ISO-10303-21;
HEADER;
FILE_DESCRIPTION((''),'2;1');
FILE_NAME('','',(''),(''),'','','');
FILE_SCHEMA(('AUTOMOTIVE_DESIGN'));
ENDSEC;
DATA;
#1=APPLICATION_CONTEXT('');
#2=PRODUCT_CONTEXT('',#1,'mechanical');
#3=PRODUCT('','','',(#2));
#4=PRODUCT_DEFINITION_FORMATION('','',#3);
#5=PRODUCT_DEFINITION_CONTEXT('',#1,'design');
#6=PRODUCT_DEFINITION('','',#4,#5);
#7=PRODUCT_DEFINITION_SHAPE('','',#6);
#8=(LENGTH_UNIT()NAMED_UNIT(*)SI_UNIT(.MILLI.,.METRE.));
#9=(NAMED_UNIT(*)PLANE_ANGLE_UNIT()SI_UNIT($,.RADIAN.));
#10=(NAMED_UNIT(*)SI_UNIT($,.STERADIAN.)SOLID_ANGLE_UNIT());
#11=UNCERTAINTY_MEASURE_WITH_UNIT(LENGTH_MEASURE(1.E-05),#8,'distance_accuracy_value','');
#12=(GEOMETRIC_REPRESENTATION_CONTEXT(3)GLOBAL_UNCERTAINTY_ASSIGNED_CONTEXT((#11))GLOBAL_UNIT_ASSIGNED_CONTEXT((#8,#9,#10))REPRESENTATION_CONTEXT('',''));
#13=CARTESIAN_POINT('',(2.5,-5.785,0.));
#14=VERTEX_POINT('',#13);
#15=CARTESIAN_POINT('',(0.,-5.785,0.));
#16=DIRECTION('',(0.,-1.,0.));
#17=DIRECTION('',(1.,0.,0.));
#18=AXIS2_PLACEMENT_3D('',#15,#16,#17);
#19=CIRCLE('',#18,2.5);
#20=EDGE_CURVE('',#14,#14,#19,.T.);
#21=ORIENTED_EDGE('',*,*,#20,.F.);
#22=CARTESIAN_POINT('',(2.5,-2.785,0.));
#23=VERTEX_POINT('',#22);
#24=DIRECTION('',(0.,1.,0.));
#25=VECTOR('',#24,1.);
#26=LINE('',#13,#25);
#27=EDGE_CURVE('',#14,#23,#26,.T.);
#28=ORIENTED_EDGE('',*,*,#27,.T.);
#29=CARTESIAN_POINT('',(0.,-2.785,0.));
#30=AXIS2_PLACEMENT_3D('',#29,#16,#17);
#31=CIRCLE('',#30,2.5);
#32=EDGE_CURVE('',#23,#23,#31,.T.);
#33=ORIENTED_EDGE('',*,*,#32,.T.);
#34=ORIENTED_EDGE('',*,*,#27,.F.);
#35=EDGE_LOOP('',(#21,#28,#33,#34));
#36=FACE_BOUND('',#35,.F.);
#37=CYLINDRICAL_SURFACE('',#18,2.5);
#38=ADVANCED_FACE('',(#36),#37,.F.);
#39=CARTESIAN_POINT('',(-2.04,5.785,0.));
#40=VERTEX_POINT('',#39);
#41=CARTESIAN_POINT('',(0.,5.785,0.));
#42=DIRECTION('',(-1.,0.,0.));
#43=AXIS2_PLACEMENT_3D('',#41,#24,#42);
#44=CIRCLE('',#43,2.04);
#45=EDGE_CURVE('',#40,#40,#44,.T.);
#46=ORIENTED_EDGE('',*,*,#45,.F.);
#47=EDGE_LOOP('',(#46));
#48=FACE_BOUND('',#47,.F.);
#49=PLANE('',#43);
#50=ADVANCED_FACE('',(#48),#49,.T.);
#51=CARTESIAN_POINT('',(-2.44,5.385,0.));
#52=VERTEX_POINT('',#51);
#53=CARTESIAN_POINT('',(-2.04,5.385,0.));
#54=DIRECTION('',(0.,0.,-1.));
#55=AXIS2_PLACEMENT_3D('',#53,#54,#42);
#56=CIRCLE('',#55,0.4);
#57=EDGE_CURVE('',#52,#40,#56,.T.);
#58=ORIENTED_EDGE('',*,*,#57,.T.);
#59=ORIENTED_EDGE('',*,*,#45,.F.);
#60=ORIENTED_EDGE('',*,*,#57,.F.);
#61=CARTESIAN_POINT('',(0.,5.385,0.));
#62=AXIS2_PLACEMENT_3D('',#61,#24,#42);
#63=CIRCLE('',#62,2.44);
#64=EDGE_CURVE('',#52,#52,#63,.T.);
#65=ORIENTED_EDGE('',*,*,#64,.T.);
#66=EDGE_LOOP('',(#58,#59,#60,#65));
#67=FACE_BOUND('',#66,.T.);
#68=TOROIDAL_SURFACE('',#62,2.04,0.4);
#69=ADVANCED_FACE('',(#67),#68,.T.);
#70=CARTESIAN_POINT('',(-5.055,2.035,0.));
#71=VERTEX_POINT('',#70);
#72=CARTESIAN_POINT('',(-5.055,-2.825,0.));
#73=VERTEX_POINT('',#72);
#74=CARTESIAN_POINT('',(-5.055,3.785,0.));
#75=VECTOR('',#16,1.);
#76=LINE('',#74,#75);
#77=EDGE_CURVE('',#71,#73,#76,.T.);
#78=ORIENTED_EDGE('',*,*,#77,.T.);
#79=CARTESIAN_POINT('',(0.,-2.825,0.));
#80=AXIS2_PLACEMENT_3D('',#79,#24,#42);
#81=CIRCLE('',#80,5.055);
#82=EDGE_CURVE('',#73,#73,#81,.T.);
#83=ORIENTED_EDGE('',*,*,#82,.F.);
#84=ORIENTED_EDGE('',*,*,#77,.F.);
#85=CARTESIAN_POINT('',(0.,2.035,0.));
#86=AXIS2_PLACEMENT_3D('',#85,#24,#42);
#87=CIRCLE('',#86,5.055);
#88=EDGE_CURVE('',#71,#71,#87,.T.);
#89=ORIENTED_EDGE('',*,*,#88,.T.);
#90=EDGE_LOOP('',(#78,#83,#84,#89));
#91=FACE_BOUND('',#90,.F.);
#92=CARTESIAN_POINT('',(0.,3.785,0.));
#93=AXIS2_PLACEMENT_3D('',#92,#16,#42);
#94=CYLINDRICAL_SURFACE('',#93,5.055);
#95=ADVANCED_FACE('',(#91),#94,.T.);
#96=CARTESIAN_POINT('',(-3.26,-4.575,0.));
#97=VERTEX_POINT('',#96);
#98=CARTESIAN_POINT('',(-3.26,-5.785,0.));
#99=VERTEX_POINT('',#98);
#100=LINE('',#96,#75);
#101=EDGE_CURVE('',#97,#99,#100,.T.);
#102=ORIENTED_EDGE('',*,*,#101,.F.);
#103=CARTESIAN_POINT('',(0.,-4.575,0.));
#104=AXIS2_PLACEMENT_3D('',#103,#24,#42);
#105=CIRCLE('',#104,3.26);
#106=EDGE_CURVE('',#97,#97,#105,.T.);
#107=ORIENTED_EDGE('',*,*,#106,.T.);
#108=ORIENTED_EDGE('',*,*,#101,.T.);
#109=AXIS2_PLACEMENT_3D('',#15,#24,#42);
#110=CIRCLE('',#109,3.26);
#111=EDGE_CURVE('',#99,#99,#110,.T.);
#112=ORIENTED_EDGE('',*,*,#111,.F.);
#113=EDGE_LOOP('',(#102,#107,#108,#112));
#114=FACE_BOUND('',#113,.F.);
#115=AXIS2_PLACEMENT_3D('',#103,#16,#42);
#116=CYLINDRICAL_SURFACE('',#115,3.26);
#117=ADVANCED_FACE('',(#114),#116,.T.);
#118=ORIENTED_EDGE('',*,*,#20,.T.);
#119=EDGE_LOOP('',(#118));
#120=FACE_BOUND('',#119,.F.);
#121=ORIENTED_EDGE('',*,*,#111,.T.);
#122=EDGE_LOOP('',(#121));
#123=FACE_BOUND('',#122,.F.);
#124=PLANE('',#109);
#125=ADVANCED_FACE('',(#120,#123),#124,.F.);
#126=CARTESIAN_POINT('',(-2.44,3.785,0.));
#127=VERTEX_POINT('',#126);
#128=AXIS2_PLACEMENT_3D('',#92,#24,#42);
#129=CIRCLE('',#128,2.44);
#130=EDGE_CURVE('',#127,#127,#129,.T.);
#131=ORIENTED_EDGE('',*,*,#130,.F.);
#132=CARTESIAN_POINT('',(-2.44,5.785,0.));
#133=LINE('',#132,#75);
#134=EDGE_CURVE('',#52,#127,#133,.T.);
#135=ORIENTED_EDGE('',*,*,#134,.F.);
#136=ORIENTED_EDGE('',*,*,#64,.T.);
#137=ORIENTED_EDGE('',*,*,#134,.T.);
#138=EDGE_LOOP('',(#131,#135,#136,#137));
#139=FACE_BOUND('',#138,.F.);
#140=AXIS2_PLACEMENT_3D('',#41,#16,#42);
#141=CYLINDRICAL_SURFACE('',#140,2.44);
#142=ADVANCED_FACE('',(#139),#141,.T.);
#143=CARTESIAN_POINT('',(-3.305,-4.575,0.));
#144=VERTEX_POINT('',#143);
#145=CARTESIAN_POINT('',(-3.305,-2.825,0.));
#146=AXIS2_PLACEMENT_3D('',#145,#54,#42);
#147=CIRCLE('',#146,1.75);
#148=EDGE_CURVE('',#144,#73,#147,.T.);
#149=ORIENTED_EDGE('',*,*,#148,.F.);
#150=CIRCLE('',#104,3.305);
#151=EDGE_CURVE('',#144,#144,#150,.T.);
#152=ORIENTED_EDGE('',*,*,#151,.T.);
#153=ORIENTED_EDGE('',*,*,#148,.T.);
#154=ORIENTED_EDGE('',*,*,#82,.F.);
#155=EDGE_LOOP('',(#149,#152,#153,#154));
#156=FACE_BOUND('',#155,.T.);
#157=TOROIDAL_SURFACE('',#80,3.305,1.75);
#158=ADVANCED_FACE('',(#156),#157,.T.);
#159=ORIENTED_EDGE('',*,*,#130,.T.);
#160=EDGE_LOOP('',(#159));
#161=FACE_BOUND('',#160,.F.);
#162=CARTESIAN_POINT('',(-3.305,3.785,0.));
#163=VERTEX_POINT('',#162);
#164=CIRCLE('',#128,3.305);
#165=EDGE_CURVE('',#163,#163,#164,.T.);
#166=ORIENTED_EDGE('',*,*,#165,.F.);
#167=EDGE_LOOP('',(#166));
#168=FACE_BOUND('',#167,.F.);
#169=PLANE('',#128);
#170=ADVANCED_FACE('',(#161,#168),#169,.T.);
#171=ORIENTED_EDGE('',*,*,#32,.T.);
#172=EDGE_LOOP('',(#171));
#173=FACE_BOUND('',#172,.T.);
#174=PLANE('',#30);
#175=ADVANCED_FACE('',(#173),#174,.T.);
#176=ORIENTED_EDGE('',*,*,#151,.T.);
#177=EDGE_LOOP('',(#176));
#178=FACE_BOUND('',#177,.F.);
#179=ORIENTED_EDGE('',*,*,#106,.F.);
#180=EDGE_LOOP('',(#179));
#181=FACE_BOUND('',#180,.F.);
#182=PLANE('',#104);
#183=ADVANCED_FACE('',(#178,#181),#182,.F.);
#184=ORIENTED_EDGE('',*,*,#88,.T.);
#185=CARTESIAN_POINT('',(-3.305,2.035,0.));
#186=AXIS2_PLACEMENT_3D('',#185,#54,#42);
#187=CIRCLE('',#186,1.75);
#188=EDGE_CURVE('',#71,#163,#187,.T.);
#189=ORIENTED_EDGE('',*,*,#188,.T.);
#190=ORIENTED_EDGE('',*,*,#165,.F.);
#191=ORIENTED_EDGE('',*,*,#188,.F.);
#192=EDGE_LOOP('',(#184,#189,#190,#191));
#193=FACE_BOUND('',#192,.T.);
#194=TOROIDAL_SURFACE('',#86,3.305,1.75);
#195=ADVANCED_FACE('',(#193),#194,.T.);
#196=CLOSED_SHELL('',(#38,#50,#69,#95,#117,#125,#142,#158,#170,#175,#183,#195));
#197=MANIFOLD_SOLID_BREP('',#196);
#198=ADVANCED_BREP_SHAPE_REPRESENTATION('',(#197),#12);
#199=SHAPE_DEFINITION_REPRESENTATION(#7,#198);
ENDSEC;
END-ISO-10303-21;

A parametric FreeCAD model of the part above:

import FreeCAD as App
import Part
import Sketcher


def edges_at(feature, points):
    """Names of the edges that pass closest to the given points."""
    edges = feature.Shape.Edges
    near = lambda p: min(range(len(edges)), key=lambda i: edges[i].distToShape(Part.Vertex(*p))[0])
    return sorted({f"Edge{near(p) + 1}" for p in points})

doc = App.newDocument("Part")
body = doc.addObject("PartDesign::Body", "Body")

sketch1 = body.newObject("Sketcher::SketchObject", "Sketch")
sketch1.AttachmentSupport = (doc.getObject("XY_Plane"), [""])
sketch1.MapMode = "FlatFace"
sketch1.addGeometry([
    Part.LineSegment(App.Vector(0, -5.8, 0), App.Vector(0, 5.8, 0)),
    Part.LineSegment(App.Vector(0, 5.8, 0), App.Vector(-2.4, 5.8, 0)),
    Part.LineSegment(App.Vector(-2.4, 5.8, 0), App.Vector(-2.4, 3.8, 0)),
    Part.LineSegment(App.Vector(-2.4, 3.8, 0), App.Vector(-5.1, 3.8, 0)),
    Part.LineSegment(App.Vector(-5.1, 3.8, 0), App.Vector(-5.1, -4.6, 0)),
    Part.LineSegment(App.Vector(-5.1, -4.6, 0), App.Vector(-3.3, -4.6, 0)),
    Part.LineSegment(App.Vector(-3.3, -4.6, 0), App.Vector(-3.3, -5.8, 0)),
    Part.LineSegment(App.Vector(-3.3, -5.8, 0), App.Vector(0, -5.8, 0)),
], False)
sketch1.addConstraint([
    Sketcher.Constraint("Coincident", 0, 2, 1, 1),
    Sketcher.Constraint("Coincident", 1, 2, 2, 1),
    Sketcher.Constraint("Coincident", 2, 2, 3, 1),
    Sketcher.Constraint("Coincident", 3, 2, 4, 1),
    Sketcher.Constraint("Coincident", 4, 2, 5, 1),
    Sketcher.Constraint("Coincident", 5, 2, 6, 1),
    Sketcher.Constraint("Coincident", 6, 2, 7, 1),
    Sketcher.Constraint("Coincident", 7, 2, 0, 1),
    Sketcher.Constraint("Vertical", 0),
    Sketcher.Constraint("Horizontal", 1),
    Sketcher.Constraint("Vertical", 2),
    Sketcher.Constraint("Horizontal", 3),
    Sketcher.Constraint("Vertical", 4),
    Sketcher.Constraint("Horizontal", 5),
    Sketcher.Constraint("Vertical", 6),
    Sketcher.Constraint("Horizontal", 7),
    Sketcher.Constraint("Symmetric", 0, 2, 7, 2, -1, 1),
    Sketcher.Constraint("DistanceY", 2, 2, 2, 1, 2.0),
    Sketcher.Constraint("DistanceY", 0, 1, 0, 2, 11.57),
    Sketcher.Constraint("DistanceY", 6, 2, 6, 1, 1.21),
    Sketcher.Constraint("DistanceX", 1, 2, 1, 1, 2.44),
    Sketcher.Constraint("DistanceX", 7, 1, 7, 2, 3.26),
    Sketcher.Constraint("DistanceX", 3, 2, 3, 1, 2.615),
])
revolution = body.newObject("PartDesign::Revolution", "Revolution")
revolution.Profile = sketch1
revolution.ReferenceAxis = (sketch1, ["V_Axis"])
revolution.Angle = 360
doc.recompute()

fillet = body.newObject("PartDesign::Fillet", "Fillet")
fillet.Base = (revolution, edges_at(revolution, [(5.055, 3.785, 0), (5.055, -4.575, 0)]))
fillet.Radius = 1.75
doc.recompute()

fillet2 = body.newObject("PartDesign::Fillet", "Fillet001")
fillet2.Base = (fillet, edges_at(fillet, [(2.44, 5.785, 0)]))
fillet2.Radius = 0.4

sketch2 = body.newObject("Sketcher::SketchObject", "Sketch001")
sketch2.AttachmentSupport = (doc.getObject("XZ_Plane"), [""])
sketch2.MapMode = "FlatFace"
sketch2.AttachmentOffset = App.Placement(App.Vector(0, 0, 5.785), App.Rotation())
sketch2.addGeometry(Part.Circle(App.Vector(0, 0, 0), App.Vector(0, 0, 1), 2.5), False)
sketch2.addConstraint([
    Sketcher.Constraint("Coincident", 0, 3, -1, 1),
    Sketcher.Constraint("Diameter", 0, 5.0),
])
pocket1 = body.newObject("PartDesign::Pocket", "Pocket")
pocket1.Profile = sketch2
pocket1.Length = 3

doc.recompute()
